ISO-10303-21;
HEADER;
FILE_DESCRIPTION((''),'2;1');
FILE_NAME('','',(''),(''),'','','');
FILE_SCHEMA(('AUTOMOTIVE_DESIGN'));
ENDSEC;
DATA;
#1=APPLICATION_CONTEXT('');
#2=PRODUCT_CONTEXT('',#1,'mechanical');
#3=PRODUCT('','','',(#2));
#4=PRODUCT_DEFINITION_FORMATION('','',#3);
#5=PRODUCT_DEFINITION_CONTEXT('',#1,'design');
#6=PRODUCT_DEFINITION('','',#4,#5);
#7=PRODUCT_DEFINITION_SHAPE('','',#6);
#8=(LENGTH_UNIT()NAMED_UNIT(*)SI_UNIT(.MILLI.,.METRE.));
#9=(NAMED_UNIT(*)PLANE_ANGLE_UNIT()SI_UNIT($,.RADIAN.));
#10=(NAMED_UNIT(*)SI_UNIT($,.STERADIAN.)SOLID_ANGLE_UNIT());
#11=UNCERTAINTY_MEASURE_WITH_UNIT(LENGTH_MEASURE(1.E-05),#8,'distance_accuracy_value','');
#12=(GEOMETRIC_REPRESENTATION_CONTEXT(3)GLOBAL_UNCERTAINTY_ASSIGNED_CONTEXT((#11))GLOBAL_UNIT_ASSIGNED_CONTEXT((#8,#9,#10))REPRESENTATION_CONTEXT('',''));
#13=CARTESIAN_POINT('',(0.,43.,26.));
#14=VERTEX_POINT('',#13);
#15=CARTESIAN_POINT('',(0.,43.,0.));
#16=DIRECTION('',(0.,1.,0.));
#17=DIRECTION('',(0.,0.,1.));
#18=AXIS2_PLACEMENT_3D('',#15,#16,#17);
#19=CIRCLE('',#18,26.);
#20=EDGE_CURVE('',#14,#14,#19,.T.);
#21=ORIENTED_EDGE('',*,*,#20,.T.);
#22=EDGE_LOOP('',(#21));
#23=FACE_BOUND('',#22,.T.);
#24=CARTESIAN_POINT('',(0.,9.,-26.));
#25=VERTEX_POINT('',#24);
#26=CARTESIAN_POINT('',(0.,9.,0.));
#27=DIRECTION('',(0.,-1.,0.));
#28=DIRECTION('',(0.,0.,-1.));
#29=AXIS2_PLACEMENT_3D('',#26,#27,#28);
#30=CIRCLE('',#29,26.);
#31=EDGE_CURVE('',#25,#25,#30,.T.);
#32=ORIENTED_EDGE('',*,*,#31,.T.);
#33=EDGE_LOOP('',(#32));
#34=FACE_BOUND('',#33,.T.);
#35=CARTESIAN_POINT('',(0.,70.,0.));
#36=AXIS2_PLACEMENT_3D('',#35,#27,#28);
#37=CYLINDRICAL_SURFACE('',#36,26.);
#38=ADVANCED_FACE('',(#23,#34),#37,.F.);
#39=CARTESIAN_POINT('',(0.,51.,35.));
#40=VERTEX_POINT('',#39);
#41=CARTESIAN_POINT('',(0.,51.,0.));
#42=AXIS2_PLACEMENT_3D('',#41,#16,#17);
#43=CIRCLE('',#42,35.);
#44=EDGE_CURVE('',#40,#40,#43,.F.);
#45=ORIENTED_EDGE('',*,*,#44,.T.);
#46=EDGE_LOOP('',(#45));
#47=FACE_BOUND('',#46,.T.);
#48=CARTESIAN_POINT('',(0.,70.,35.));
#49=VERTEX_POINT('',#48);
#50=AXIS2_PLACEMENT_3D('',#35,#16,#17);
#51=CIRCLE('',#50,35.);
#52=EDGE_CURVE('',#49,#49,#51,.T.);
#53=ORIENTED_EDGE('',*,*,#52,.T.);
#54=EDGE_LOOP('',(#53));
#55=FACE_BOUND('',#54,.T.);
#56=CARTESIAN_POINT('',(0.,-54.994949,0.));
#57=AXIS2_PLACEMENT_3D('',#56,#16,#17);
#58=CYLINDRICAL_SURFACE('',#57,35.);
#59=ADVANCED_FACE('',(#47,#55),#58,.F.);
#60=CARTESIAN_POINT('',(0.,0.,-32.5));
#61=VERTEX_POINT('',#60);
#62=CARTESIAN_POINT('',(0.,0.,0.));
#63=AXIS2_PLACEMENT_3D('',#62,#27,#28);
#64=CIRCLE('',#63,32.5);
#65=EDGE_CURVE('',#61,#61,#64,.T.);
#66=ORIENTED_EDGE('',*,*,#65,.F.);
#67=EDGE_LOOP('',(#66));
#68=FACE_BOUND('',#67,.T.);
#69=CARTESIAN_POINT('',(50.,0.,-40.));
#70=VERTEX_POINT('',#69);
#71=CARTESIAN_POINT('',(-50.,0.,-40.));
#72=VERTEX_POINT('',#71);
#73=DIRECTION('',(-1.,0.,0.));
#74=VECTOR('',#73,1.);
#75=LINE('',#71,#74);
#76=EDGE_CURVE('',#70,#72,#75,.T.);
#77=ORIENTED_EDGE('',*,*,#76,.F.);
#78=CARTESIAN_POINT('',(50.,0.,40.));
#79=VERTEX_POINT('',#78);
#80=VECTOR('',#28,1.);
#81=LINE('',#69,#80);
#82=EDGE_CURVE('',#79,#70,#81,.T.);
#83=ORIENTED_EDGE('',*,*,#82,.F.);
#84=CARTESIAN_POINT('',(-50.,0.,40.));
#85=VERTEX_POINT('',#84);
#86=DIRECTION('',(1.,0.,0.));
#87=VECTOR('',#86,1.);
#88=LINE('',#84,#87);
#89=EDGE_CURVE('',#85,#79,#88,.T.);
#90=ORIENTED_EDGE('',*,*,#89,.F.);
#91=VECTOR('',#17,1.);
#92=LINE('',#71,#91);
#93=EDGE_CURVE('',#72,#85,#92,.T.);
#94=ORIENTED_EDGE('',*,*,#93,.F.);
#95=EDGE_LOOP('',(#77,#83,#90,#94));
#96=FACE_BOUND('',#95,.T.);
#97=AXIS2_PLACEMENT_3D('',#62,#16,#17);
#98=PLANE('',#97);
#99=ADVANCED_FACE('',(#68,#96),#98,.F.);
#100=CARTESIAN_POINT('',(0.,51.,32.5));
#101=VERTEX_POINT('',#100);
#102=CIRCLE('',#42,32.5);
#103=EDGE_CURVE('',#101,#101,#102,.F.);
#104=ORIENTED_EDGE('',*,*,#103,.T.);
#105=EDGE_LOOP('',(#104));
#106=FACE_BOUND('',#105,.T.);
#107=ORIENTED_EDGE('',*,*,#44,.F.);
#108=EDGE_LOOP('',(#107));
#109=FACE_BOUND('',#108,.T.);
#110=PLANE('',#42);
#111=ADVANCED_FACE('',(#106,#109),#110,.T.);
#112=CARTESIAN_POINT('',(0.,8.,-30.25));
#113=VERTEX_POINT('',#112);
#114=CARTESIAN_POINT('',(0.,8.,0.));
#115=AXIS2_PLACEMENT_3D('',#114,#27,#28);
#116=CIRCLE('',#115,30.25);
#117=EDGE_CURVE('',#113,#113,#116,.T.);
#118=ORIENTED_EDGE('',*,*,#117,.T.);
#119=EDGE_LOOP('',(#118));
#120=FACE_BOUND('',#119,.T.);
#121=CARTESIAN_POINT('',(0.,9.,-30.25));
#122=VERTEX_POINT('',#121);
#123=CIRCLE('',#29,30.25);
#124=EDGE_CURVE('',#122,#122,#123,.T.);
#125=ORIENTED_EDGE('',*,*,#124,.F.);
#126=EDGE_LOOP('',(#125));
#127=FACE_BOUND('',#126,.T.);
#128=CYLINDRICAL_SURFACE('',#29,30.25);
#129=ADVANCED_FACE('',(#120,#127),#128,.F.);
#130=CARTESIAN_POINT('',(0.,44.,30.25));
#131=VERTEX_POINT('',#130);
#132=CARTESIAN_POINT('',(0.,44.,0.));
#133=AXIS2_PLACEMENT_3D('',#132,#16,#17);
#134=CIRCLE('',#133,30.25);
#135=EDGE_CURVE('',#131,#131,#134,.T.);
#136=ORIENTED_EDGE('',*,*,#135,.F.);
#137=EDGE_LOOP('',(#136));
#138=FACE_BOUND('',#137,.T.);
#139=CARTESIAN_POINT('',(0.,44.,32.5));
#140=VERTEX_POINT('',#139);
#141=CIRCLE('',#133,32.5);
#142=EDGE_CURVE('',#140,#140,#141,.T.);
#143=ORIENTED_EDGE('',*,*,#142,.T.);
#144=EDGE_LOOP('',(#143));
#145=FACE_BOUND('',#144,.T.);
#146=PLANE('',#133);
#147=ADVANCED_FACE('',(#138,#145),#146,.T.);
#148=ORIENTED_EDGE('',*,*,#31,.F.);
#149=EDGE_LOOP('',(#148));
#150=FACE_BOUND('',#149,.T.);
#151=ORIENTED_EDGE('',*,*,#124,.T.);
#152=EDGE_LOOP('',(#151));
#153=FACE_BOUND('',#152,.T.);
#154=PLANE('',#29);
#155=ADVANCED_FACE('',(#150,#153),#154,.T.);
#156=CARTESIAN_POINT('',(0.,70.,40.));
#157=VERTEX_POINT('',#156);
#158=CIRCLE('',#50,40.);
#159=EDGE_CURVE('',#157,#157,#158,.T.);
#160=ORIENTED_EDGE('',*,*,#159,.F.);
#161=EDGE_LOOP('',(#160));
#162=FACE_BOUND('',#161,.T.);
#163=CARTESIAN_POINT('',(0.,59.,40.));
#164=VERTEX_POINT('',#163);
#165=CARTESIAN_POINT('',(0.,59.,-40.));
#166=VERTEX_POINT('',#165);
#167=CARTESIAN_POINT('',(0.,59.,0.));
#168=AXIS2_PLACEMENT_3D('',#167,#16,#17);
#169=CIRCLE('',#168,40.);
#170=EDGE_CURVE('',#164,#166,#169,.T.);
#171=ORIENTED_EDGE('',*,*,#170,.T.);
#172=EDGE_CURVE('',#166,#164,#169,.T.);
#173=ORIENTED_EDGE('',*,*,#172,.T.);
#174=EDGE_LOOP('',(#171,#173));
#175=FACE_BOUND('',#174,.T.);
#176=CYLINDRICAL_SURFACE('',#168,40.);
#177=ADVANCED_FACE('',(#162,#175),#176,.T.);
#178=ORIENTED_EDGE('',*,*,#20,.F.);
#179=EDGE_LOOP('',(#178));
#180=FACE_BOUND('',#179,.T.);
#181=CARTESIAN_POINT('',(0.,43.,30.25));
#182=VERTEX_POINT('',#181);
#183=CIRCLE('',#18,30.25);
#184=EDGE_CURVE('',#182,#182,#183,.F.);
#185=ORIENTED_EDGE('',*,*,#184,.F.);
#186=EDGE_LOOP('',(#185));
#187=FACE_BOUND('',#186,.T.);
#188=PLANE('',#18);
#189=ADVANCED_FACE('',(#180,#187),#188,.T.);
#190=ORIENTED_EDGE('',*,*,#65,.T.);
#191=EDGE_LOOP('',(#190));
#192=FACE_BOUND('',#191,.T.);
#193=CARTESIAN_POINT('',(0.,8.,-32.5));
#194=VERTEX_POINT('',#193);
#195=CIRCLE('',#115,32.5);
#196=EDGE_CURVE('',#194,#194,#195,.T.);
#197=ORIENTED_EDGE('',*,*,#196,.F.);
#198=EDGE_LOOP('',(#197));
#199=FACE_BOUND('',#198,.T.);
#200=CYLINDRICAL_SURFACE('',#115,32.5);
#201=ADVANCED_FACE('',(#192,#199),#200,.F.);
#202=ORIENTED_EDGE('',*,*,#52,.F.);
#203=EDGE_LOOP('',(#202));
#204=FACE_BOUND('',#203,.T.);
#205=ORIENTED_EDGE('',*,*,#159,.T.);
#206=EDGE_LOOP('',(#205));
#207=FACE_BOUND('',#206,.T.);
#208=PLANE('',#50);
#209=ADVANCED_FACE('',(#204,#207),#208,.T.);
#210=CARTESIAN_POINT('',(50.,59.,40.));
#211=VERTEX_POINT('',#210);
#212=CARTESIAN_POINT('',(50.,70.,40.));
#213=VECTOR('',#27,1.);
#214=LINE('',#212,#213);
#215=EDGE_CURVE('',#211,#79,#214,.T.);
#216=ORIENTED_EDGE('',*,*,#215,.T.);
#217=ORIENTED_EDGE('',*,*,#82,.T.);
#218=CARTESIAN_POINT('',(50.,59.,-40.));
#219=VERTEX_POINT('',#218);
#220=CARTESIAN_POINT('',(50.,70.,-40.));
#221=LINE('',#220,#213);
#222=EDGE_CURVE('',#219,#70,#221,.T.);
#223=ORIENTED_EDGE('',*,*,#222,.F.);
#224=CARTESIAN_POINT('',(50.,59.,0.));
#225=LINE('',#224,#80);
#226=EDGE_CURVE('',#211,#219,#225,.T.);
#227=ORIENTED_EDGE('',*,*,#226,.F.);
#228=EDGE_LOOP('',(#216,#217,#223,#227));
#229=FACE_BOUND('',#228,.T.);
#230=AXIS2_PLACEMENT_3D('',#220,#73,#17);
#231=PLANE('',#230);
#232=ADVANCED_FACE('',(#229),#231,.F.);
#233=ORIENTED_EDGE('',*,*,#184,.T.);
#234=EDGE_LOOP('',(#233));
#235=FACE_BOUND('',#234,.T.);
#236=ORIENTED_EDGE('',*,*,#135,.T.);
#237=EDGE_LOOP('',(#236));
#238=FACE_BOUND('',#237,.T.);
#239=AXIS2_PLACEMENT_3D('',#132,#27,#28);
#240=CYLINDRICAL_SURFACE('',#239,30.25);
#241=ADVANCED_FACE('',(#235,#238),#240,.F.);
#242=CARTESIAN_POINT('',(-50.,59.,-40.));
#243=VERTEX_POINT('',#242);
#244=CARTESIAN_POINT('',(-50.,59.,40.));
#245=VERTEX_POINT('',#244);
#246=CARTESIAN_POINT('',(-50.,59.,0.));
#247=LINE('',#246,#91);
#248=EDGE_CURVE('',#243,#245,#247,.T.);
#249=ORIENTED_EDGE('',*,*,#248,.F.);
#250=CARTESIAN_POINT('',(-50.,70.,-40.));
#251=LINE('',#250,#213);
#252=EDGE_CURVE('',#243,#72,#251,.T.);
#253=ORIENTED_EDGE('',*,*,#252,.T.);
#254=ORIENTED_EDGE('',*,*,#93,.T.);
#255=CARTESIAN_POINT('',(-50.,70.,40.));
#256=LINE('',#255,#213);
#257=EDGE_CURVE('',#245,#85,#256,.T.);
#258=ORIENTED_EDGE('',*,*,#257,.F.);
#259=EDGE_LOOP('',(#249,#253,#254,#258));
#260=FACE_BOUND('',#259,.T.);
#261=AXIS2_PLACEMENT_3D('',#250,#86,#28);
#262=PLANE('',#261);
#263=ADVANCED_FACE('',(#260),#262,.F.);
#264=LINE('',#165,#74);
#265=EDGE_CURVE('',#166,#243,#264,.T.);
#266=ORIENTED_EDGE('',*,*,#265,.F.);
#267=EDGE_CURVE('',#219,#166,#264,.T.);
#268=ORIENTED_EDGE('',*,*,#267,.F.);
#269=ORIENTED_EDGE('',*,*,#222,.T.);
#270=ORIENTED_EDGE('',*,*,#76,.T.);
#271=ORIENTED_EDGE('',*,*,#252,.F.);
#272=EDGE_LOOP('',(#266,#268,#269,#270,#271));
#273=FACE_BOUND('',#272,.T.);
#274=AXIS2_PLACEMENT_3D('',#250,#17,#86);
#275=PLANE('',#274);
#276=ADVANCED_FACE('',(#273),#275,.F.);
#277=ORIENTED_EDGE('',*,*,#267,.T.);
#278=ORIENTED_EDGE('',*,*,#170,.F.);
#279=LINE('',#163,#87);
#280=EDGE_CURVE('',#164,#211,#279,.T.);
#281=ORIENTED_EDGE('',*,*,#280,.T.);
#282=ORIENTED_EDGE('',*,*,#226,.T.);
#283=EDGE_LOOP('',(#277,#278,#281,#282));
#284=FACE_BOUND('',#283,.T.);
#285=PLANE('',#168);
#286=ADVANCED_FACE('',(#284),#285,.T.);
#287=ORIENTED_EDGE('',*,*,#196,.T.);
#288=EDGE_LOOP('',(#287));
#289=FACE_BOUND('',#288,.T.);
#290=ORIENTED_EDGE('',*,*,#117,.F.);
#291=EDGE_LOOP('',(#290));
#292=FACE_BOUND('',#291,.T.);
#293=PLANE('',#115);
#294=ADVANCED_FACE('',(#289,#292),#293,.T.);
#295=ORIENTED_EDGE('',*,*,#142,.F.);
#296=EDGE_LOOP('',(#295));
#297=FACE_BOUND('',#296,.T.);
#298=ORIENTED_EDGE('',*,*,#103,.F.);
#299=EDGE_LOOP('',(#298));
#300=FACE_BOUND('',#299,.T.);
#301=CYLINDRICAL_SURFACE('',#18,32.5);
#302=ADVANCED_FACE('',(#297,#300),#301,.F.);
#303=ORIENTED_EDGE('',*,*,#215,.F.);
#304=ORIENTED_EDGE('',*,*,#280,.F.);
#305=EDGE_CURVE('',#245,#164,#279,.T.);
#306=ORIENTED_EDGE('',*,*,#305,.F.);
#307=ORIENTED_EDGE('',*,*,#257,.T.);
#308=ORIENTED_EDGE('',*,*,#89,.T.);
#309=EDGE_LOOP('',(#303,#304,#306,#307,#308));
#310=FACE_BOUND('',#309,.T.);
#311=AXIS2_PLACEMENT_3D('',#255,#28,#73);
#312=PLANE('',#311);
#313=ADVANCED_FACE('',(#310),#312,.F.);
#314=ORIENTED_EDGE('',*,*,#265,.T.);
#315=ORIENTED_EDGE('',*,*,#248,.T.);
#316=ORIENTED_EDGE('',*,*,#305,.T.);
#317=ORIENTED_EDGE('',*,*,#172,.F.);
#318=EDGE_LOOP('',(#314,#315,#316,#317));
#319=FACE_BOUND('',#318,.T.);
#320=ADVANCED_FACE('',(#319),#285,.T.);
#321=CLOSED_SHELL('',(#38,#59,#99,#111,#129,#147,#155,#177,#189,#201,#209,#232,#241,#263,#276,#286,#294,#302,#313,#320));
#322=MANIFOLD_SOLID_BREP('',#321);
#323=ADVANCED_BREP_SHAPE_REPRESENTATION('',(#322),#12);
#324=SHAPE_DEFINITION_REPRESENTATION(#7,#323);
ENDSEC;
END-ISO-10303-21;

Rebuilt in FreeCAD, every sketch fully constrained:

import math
import FreeCAD as App
import Part
import Sketcher

V = App.Vector

doc = App.newDocument("Part")
params = doc.addObject("Spreadsheet::Sheet", "Params")
for row, (alias, value) in enumerate([
    ("sketch1_diameter", "52 mm"),
    ("sketch1_width", "100 mm"),
    ("sketch1_height", "80 mm"),
    ("pad1_length", "70 mm"),
    ("sketch2_diameter", "65 mm"),
    ("pocket1_length", "27 mm"),
    ("sketch3_diameter", "65 mm"),
    ("sketch3_diameter2", "60.5 mm"),
    ("pad2_length", "1 mm"),
    ("sketch4_diameter", "70 mm"),
    ("pocket2_length", "19 mm"),
    ("sketch5_diameter", "65 mm"),
    ("pocket3_length", "8 mm"),
    ("sketch6_diameter", "60.5 mm"),
    ("pocket4_length", "1 mm"),
    ("sketch7_radius", "40 mm"),
    ("sketch7_width", "50 mm"),
    ("pocket5_length", "11 mm"),
], start=1):
    params.set(f"A{row}", alias)
    params.set(f"B{row}", "=" + value)
    params.setAlias(f"B{row}", alias)

body = doc.addObject("PartDesign::Body", "Body")

# Sketch on XZ plane
sketch1 = body.newObject("Sketcher::SketchObject", "Sketch")
sketch1.AttachmentSupport = (doc.getObject("XZ_Plane"), [""])
sketch1.MapMode = "FlatFace"
sketch1.addGeometry(Part.LineSegment(V(-50, -40, 0), V(-50, 40, 0)), False)
sketch1.addGeometry(Part.LineSegment(V(-50, 40, 0), V(50, 40, 0)), False)
sketch1.addGeometry(Part.LineSegment(V(50, 40, 0), V(50, -40, 0)), False)
sketch1.addGeometry(Part.LineSegment(V(50, -40, 0), V(-50, -40, 0)), False)
sketch1.addGeometry(Part.Circle(V(0, 0, 0), V(0, 0, 1), 26), False)
sketch1.addConstraint(Sketcher.Constraint("Coincident", 0, 2, 1, 1))
sketch1.addConstraint(Sketcher.Constraint("Coincident", 1, 2, 2, 1))
sketch1.addConstraint(Sketcher.Constraint("Coincident", 2, 2, 3, 1))
sketch1.addConstraint(Sketcher.Constraint("Coincident", 3, 2, 0, 1))
sketch1.addConstraint(Sketcher.Constraint("Vertical", 0))
sketch1.addConstraint(Sketcher.Constraint("Horizontal", 1))
sketch1.addConstraint(Sketcher.Constraint("Vertical", 2))
sketch1.addConstraint(Sketcher.Constraint("Horizontal", 3))
sketch1.addConstraint(Sketcher.Constraint("Coincident", 4, 3, -1, 1))
sketch1.addConstraint(Sketcher.Constraint("Symmetric", 0, 2, 2, 2, -1, 1))
sketch1.addConstraint(Sketcher.Constraint("Diameter", 4, 52.0))
sketch1.addConstraint(Sketcher.Constraint("DistanceX", 1, 1, 1, 2, 100.0))
sketch1.addConstraint(Sketcher.Constraint("DistanceY", 0, 1, 0, 2, 80.0))
sketch1.setExpression("Constraints[10]", "Params.sketch1_diameter")
sketch1.setExpression("Constraints[11]", "Params.sketch1_width")
sketch1.setExpression("Constraints[12]", "Params.sketch1_height")
pad1 = body.newObject("PartDesign::Pad", "Pad")
pad1.Profile = sketch1
pad1.setExpression("Length", "Params.pad1_length")
pad1.Reversed = True

# Sketch on XZ plane
sketch2 = body.newObject("Sketcher::SketchObject", "Sketch001")
sketch2.AttachmentSupport = (doc.getObject("XZ_Plane"), [""])
sketch2.MapMode = "FlatFace"
sketch2.AttachmentOffset = App.Placement(V(0, 0, -70), App.Rotation())
sketch2.addGeometry(Part.Circle(V(0, 0, 0), V(0, 0, 1), 32.5), False)
sketch2.addConstraint(Sketcher.Constraint("Coincident", 0, 3, -1, 1))
sketch2.addConstraint(Sketcher.Constraint("Diameter", 0, 65.0))
sketch2.setExpression("Constraints[1]", "Params.sketch2_diameter")
pocket1 = body.newObject("PartDesign::Pocket", "Pocket")
pocket1.Profile = sketch2
pocket1.setExpression("Length", "Params.pocket1_length")
pocket1.Reversed = True

# Sketch on XZ plane
sketch3 = body.newObject("Sketcher::SketchObject", "Sketch002")
sketch3.AttachmentSupport = (doc.getObject("XZ_Plane"), [""])
sketch3.MapMode = "FlatFace"
sketch3.AttachmentOffset = App.Placement(V(0, 0, -44), App.Rotation())
sketch3.addGeometry(Part.Circle(V(0, 0, 0), V(0, 0, 1), 32.5), False)
sketch3.addGeometry(Part.Circle(V(0, 0, 0), V(0, 0, 1), 30.25), False)
sketch3.addConstraint(Sketcher.Constraint("Coincident", 0, 3, -1, 1))
sketch3.addConstraint(Sketcher.Constraint("Coincident", 1, 3, -1, 1))
sketch3.addConstraint(Sketcher.Constraint("Diameter", 0, 65.0))
sketch3.addConstraint(Sketcher.Constraint("Diameter", 1, 60.5))
sketch3.setExpression("Constraints[2]", "Params.sketch3_diameter")
sketch3.setExpression("Constraints[3]", "Params.sketch3_diameter2")
pad2 = body.newObject("PartDesign::Pad", "Pad001")
pad2.Profile = sketch3
pad2.setExpression("Length", "Params.pad2_length")

# Sketch on XZ plane
sketch4 = body.newObject("Sketcher::SketchObject", "Sketch003")
sketch4.AttachmentSupport = (doc.getObject("XZ_Plane"), [""])
sketch4.MapMode = "FlatFace"
sketch4.AttachmentOffset = App.Placement(V(0, 0, -70), App.Rotation())
sketch4.addGeometry(Part.Circle(V(0, 0, 0), V(0, 0, 1), 35), False)
sketch4.addConstraint(Sketcher.Constraint("Coincident", 0, 3, -1, 1))
sketch4.addConstraint(Sketcher.Constraint("Diameter", 0, 70.0))
sketch4.setExpression("Constraints[1]", "Params.sketch4_diameter")
pocket2 = body.newObject("PartDesign::Pocket", "Pocket001")
pocket2.Profile = sketch4
pocket2.setExpression("Length", "Params.pocket2_length")
pocket2.Reversed = True

# Sketch on XZ plane
sketch5 = body.newObject("Sketcher::SketchObject", "Sketch004")
sketch5.AttachmentSupport = (doc.getObject("XZ_Plane"), [""])
sketch5.MapMode = "FlatFace"
sketch5.AttachmentOffset = App.Placement(V(0, 0, -8), App.Rotation())
sketch5.addGeometry(Part.Circle(V(0, 0, 0), V(0, 0, 1), 32.5), False)
sketch5.addConstraint(Sketcher.Constraint("Coincident", 0, 3, -1, 1))
sketch5.addConstraint(Sketcher.Constraint("Diameter", 0, 65.0))
sketch5.setExpression("Constraints[1]", "Params.sketch5_diameter")
pocket3 = body.newObject("PartDesign::Pocket", "Pocket002")
pocket3.Profile = sketch5
pocket3.setExpression("Length", "Params.pocket3_length")
pocket3.Reversed = True

# Sketch on XZ plane
sketch6 = body.newObject("Sketcher::SketchObject", "Sketch005")
sketch6.AttachmentSupport = (doc.getObject("XZ_Plane"), [""])
sketch6.MapMode = "FlatFace"
sketch6.AttachmentOffset = App.Placement(V(0, 0, -9), App.Rotation())
sketch6.addGeometry(Part.Circle(V(0, 0, 0), V(0, 0, 1), 30.25), False)
sketch6.addConstraint(Sketcher.Constraint("Coincident", 0, 3, -1, 1))
sketch6.addConstraint(Sketcher.Constraint("Diameter", 0, 60.5))
sketch6.setExpression("Constraints[1]", "Params.sketch6_diameter")
pocket4 = body.newObject("PartDesign::Pocket", "Pocket003")
pocket4.Profile = sketch6
pocket4.setExpression("Length", "Params.pocket4_length")
pocket4.Reversed = True

# Sketch on XZ plane
sketch7 = body.newObject("Sketcher::SketchObject", "Sketch006")
sketch7.AttachmentSupport = (doc.getObject("XZ_Plane"), [""])
sketch7.MapMode = "FlatFace"
sketch7.AttachmentOffset = App.Placement(V(0, 0, -70), App.Rotation())
sketch7.addGeometry(Part.LineSegment(V(50, -40, 0), V(0, -40, 0)), False)
sketch7.addGeometry(Part.ArcOfCircle(Part.Circle(V(0, 0, 0), V(0, 0, 1), 40), math.radians(-90), math.radians(0)), False)
sketch7.addGeometry(Part.ArcOfCircle(Part.Circle(V(0, 0, 0), V(0, 0, 1), 40), math.radians(0), math.radians(90)), False)
sketch7.addGeometry(Part.LineSegment(V(0, 40, 0), V(50, 40, 0)), False)
sketch7.addGeometry(Part.LineSegment(V(50, 40, 0), V(50, -40, 0)), False)
sketch7.addGeometry(Part.LineSegment(V(0, -40, 0), V(-50, -40, 0)), False)
sketch7.addGeometry(Part.LineSegment(V(-50, -40, 0), V(-50, 40, 0)), False)
sketch7.addGeometry(Part.LineSegment(V(-50, 40, 0), V(0, 40, 0)), False)
sketch7.addGeometry(Part.ArcOfCircle(Part.Circle(V(0, 0, 0), V(0, 0, 1), 40), math.radians(90), math.radians(270)), False)
sketch7.addConstraint(Sketcher.Constraint("Tangent", 0, 2, 1, 1))
sketch7.addConstraint(Sketcher.Constraint("Tangent", 1, 2, 2, 1))
sketch7.addConstraint(Sketcher.Constraint("Tangent", 2, 2, 3, 1))
sketch7.addConstraint(Sketcher.Constraint("Coincident", 3, 2, 4, 1))
sketch7.addConstraint(Sketcher.Constraint("Coincident", 4, 2, 0, 1))
sketch7.addConstraint(Sketcher.Constraint("Coincident", 5, 2, 6, 1))
sketch7.addConstraint(Sketcher.Constraint("Coincident", 6, 2, 7, 1))
sketch7.addConstraint(Sketcher.Constraint("Tangent", 7, 2, 8, 1))
sketch7.addConstraint(Sketcher.Constraint("Tangent", 8, 2, 5, 1))
sketch7.addConstraint(Sketcher.Constraint("Horizontal", 0))
sketch7.addConstraint(Sketcher.Constraint("Horizontal", 3))
sketch7.addConstraint(Sketcher.Constraint("Vertical", 4))
sketch7.addConstraint(Sketcher.Constraint("Horizontal", 5))
sketch7.addConstraint(Sketcher.Constraint("Vertical", 6))
sketch7.addConstraint(Sketcher.Constraint("Horizontal", 7))
sketch7.addConstraint(Sketcher.Constraint("Coincident", 1, 3, -1, 1))
sketch7.addConstraint(Sketcher.Constraint("Coincident", 8, 3, -1, 1))
sketch7.addConstraint(Sketcher.Constraint("Coincident", 7, 2, 2, 2))
sketch7.addConstraint(Sketcher.Constraint("PointOnObject", 1, 2, -1))
sketch7.addConstraint(Sketcher.Constraint("Equal", 3, 5))
sketch7.addConstraint(Sketcher.Constraint("Radius", 1, 40.0))
sketch7.addConstraint(Sketcher.Constraint("DistanceX", 0, 2, 0, 1, 50.0))
sketch7.setExpression("Constraints[20]", "Params.sketch7_radius")
sketch7.setExpression("Constraints[21]", "Params.sketch7_width")
pocket5 = body.newObject("PartDesign::Pocket", "Pocket004")
pocket5.Profile = sketch7
pocket5.setExpression("Length", "Params.pocket5_length")
pocket5.Reversed = True

doc.recompute()
